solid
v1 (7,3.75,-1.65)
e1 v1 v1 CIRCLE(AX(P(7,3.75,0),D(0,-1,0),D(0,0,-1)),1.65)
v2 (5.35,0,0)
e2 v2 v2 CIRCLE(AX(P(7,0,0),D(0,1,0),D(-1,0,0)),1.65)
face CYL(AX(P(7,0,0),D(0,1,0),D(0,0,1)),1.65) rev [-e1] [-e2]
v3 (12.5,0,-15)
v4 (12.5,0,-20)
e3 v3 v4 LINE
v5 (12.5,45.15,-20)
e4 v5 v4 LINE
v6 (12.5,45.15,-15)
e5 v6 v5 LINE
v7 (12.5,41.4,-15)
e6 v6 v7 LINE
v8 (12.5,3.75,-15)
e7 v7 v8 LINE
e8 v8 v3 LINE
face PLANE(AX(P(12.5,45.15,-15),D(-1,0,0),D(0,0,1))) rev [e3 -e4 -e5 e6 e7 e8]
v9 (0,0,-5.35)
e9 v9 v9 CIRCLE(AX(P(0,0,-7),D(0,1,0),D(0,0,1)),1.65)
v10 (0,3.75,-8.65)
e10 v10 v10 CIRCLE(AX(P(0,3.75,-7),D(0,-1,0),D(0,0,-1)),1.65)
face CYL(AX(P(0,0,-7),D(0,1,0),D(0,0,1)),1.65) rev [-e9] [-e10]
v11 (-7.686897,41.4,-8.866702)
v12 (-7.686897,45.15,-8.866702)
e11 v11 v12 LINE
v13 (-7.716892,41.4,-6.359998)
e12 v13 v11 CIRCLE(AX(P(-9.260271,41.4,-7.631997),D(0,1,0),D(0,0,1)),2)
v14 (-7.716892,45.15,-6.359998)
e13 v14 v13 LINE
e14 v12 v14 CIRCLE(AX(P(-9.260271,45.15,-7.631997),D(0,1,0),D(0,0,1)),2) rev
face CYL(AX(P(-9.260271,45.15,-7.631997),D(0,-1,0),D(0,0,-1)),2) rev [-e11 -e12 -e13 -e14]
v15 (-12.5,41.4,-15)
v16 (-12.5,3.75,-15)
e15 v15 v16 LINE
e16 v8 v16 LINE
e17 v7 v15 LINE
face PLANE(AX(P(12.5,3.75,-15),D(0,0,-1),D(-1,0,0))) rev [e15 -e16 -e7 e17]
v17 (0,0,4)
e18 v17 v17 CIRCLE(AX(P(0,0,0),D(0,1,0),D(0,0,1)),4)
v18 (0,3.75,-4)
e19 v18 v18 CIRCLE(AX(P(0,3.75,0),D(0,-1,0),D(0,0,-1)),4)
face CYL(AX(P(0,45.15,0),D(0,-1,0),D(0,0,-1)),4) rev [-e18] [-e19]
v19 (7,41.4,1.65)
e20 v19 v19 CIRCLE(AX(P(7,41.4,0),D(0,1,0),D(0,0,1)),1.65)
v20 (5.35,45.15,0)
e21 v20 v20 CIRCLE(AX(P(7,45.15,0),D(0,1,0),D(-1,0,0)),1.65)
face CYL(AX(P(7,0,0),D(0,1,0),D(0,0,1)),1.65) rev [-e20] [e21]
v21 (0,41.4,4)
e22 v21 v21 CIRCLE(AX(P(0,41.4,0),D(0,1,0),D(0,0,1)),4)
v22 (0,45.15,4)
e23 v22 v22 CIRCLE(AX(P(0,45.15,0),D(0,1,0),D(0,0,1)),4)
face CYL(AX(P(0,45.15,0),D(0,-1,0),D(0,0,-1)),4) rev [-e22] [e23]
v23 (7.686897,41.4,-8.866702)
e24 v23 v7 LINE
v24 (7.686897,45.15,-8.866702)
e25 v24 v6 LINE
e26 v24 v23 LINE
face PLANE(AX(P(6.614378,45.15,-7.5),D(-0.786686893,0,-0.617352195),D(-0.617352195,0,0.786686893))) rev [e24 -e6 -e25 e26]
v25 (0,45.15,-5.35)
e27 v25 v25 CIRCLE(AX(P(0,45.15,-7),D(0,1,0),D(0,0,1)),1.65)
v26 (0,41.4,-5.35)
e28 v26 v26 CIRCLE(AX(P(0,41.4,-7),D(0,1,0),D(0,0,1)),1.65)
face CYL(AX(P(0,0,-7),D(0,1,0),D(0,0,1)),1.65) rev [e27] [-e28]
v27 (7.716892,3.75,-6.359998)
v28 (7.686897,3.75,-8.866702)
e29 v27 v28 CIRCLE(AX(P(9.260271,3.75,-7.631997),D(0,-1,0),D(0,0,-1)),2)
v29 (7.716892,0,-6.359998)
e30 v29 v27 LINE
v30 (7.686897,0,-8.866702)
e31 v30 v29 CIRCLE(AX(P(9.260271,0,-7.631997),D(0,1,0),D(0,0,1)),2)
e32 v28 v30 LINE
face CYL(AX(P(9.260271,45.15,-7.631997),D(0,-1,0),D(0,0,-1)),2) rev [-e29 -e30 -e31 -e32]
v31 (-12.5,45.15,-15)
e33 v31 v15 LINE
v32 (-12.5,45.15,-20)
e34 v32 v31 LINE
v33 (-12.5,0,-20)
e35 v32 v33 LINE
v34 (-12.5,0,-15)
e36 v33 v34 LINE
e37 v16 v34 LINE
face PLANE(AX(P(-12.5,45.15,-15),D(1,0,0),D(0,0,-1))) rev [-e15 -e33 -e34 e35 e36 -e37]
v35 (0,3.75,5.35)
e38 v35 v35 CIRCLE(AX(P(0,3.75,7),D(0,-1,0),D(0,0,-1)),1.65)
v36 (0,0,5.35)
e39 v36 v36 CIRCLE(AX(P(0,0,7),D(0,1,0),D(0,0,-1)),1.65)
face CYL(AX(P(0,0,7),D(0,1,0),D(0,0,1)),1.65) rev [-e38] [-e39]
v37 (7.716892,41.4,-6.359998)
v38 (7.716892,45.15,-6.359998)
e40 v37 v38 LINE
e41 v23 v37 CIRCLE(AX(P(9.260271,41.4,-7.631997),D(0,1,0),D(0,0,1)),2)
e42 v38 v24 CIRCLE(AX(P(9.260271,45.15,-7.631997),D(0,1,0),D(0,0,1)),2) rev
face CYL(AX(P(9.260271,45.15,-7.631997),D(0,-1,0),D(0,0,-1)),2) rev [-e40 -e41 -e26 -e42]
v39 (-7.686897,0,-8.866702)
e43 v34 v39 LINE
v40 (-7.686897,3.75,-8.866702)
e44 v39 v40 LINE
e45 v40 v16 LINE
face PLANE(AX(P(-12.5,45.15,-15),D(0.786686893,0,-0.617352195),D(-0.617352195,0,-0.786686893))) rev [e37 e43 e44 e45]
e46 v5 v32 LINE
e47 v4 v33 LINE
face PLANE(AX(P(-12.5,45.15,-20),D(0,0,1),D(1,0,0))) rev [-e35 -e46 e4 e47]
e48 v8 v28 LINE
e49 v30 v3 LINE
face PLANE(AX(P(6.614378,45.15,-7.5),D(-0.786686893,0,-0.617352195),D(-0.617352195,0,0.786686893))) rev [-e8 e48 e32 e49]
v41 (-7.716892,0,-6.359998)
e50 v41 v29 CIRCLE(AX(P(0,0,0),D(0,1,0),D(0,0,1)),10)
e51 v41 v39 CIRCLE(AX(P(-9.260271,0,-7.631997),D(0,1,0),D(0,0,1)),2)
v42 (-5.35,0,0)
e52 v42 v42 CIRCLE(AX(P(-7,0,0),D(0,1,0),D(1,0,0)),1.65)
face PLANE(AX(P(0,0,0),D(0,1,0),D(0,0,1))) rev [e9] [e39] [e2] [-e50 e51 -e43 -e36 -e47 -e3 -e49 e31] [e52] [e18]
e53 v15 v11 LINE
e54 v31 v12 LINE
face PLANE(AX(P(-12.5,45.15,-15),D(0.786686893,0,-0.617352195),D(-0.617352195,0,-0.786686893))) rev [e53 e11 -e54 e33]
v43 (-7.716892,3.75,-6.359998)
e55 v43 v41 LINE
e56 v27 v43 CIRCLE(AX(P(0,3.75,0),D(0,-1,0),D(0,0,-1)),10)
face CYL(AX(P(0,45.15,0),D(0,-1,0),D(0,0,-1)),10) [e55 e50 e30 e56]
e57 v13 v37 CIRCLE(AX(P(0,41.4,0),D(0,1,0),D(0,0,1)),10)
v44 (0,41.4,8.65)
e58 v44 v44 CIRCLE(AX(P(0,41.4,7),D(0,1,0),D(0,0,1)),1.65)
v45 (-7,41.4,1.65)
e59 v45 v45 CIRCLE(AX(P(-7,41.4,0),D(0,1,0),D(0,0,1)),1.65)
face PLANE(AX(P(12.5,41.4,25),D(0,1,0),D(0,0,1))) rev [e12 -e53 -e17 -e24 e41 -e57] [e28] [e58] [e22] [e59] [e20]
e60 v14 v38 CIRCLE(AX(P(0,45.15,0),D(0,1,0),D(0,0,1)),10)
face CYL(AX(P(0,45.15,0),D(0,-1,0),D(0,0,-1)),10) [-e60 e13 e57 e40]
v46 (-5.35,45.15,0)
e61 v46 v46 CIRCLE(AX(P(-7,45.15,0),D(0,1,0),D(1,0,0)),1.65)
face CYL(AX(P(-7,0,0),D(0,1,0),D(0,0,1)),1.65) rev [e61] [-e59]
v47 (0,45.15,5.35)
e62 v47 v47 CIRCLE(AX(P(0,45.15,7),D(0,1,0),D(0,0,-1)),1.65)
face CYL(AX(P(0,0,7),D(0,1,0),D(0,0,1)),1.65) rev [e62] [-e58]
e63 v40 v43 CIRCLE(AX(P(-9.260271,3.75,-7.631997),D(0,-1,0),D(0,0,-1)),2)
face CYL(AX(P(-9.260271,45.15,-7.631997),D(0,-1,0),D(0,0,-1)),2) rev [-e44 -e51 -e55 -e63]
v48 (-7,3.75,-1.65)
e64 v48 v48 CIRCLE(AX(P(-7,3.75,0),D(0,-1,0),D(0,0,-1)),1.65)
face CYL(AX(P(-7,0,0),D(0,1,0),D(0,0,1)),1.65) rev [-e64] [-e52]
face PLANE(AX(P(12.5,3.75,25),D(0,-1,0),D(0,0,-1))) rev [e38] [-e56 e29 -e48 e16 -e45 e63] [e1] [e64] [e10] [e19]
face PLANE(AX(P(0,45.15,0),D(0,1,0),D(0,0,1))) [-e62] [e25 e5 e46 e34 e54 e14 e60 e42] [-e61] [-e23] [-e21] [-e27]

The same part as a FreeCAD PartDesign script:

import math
import FreeCAD as App
import Part
import Sketcher
from FreeCAD import Vector


def edges_at(feature, points):
    """Names of the edges that pass closest to the given points."""
    edges = feature.Shape.Edges
    near = lambda p: min(range(len(edges)), key=lambda i: edges[i].distToShape(Part.Vertex(*p))[0])
    return sorted({f"Edge{near(p) + 1}" for p in points})

doc = App.newDocument("Part")
body = doc.addObject("PartDesign::Body", "Body")

sketch1 = body.newObject("Sketcher::SketchObject", "Sketch")
sketch1.AttachmentSupport = (doc.getObject("XZ_Plane"), [""])
sketch1.MapMode = "FlatFace"
sketch1.addGeometry(Part.LineSegment(Vector(-12.5, -20, 0), Vector(-12.5, -15, 0)), False)
sketch1.addGeometry(Part.LineSegment(Vector(-12.5, -15, 0), Vector(-6.6, -7.5, 0)), False)
sketch1.addGeometry(Part.ArcOfCircle(Part.Circle(Vector(0, 0, 0), Vector(0, 0, 1), 10), math.radians(-49), math.radians(229)), False)
sketch1.addGeometry(Part.LineSegment(Vector(6.6, -7.5, 0), Vector(12.5, -15, 0)), False)
sketch1.addGeometry(Part.LineSegment(Vector(12.5, -15, 0), Vector(12.5, -20, 0)), False)
sketch1.addGeometry(Part.LineSegment(Vector(12.5, -20, 0), Vector(-12.5, -20, 0)), False)
sketch1.addGeometry(Part.Circle(Vector(0, 0, 0), Vector(0, 0, 1), 4), False)
sketch1.addConstraint(Sketcher.Constraint("Coincident", 0, 2, 1, 1))
sketch1.addConstraint(Sketcher.Constraint("Coincident", 1, 2, 2, 2))
sketch1.addConstraint(Sketcher.Constraint("Coincident", 2, 1, 3, 1))
sketch1.addConstraint(Sketcher.Constraint("Coincident", 3, 2, 4, 1))
sketch1.addConstraint(Sketcher.Constraint("Coincident", 4, 2, 5, 1))
sketch1.addConstraint(Sketcher.Constraint("Coincident", 5, 2, 0, 1))
sketch1.addConstraint(Sketcher.Constraint("Vertical", 0))
sketch1.addConstraint(Sketcher.Constraint("Vertical", 4))
sketch1.addConstraint(Sketcher.Constraint("Horizontal", 5))
sketch1.addConstraint(Sketcher.Constraint("Coincident", 2, 3, -1, 1))
sketch1.addConstraint(Sketcher.Constraint("Coincident", 6, 3, -1, 1))
sketch1.addConstraint(Sketcher.Constraint("Symmetric", 0, 2, 3, 2, -2))
sketch1.addConstraint(Sketcher.Constraint("Horizontal", 1, 2, 2, 1))
sketch1.addConstraint(Sketcher.Constraint("Diameter", 6, 8.0))
sketch1.addConstraint(Sketcher.Constraint("Radius", 2, 10.0))
sketch1.addConstraint(Sketcher.Constraint("DistanceX", 5, 2, 5, 1, 25.0))
sketch1.addConstraint(Sketcher.Constraint("DistanceY", 0, 1, 0, 2, 5.0))
sketch1.addConstraint(Sketcher.Constraint("DistanceY", 0, 2, -1, 1, 15.0))
sketch1.addConstraint(Sketcher.Constraint("DistanceY", 1, 2, -1, 1, 7.5))
pad1 = body.newObject("PartDesign::Pad", "Pad")
pad1.Profile = sketch1
pad1.Length = 45.15
pad1.Reversed = True

sketch2 = body.newObject("Sketcher::SketchObject", "Sketch001")
sketch2.AttachmentSupport = (doc.getObject("YZ_Plane"), [""])
sketch2.MapMode = "FlatFace"
sketch2.AttachmentOffset = App.Placement(Vector(0, 0, -12.5), App.Rotation())
sketch2.addGeometry(Part.LineSegment(Vector(41, -15, 0), Vector(4, -15, 0)), False)
sketch2.addGeometry(Part.LineSegment(Vector(4, -15, 0), Vector(4, 25, 0)), False)
sketch2.addGeometry(Part.LineSegment(Vector(4, 25, 0), Vector(41, 25, 0)), False)
sketch2.addGeometry(Part.LineSegment(Vector(41, 25, 0), Vector(41, -15, 0)), False)
sketch2.addConstraint(Sketcher.Constraint("Coincident", 0, 2, 1, 1))
sketch2.addConstraint(Sketcher.Constraint("Coincident", 1, 2, 2, 1))
sketch2.addConstraint(Sketcher.Constraint("Coincident", 2, 2, 3, 1))
sketch2.addConstraint(Sketcher.Constraint("Coincident", 3, 2, 0, 1))
sketch2.addConstraint(Sketcher.Constraint("Horizontal", 0))
sketch2.addConstraint(Sketcher.Constraint("Vertical", 1))
sketch2.addConstraint(Sketcher.Constraint("Horizontal", 2))
sketch2.addConstraint(Sketcher.Constraint("Vertical", 3))
sketch2.addConstraint(Sketcher.Constraint("DistanceY", 1, 1, 1, 2, 40.0))
sketch2.addConstraint(Sketcher.Constraint("DistanceY", 0, 2, -1, 1, 15.0))
sketch2.addConstraint(Sketcher.Constraint("DistanceX", 0, 2, 0, 1, 37.65))
sketch2.addConstraint(Sketcher.Constraint("DistanceX", -1, 1, 2, 2, 41.4))
pocket1 = body.newObject("PartDesign::Pocket", "Pocket")
pocket1.Profile = sketch2
pocket1.Type = "ThroughAll"
pocket1.Reversed = True

sketch3 = body.newObject("Sketcher::SketchObject", "Sketch002")
sketch3.AttachmentSupport = (doc.getObject("XZ_Plane"), [""])
sketch3.MapMode = "FlatFace"
sketch3.AttachmentOffset = App.Placement(Vector(0, 0, -45.15), App.Rotation())
sketch3.addGeometry(Part.Circle(Vector(0, -7, 0), Vector(0, 0, 1), 1.6), False)
sketch3.addConstraint(Sketcher.Constraint("PointOnObject", 0, 3, -2))
sketch3.addConstraint(Sketcher.Constraint("Diameter", 0, 3.3))
sketch3.addConstraint(Sketcher.Constraint("DistanceY", 0, 3, -1, 1, 7.0))
pocket2 = body.newObject("PartDesign::Pocket", "Pocket001")
pocket2.Profile = sketch3
pocket2.Type = "ThroughAll"
pocket2.Reversed = True
doc.recompute()

polarpattern = body.newObject("PartDesign::PolarPattern", "PolarPattern")
polarpattern.Originals = [pocket2]
polarpattern.Axis = (doc.getObject("Y_Axis"), [""])
polarpattern.Angle = 360
polarpattern.Occurrences = 4
body.Tip = polarpattern
doc.recompute()

fillet = body.newObject("PartDesign::Fillet", "Fillet")
fillet.Base = (polarpattern, edges_at(polarpattern, [
    (6.614, 43.275, -7.5),
    (-6.614, 43.275, -7.5),
    (6.614, 1.875, -7.5),
    (-6.614, 1.875, -7.5),
]))
fillet.Radius = 2

doc.recompute()
